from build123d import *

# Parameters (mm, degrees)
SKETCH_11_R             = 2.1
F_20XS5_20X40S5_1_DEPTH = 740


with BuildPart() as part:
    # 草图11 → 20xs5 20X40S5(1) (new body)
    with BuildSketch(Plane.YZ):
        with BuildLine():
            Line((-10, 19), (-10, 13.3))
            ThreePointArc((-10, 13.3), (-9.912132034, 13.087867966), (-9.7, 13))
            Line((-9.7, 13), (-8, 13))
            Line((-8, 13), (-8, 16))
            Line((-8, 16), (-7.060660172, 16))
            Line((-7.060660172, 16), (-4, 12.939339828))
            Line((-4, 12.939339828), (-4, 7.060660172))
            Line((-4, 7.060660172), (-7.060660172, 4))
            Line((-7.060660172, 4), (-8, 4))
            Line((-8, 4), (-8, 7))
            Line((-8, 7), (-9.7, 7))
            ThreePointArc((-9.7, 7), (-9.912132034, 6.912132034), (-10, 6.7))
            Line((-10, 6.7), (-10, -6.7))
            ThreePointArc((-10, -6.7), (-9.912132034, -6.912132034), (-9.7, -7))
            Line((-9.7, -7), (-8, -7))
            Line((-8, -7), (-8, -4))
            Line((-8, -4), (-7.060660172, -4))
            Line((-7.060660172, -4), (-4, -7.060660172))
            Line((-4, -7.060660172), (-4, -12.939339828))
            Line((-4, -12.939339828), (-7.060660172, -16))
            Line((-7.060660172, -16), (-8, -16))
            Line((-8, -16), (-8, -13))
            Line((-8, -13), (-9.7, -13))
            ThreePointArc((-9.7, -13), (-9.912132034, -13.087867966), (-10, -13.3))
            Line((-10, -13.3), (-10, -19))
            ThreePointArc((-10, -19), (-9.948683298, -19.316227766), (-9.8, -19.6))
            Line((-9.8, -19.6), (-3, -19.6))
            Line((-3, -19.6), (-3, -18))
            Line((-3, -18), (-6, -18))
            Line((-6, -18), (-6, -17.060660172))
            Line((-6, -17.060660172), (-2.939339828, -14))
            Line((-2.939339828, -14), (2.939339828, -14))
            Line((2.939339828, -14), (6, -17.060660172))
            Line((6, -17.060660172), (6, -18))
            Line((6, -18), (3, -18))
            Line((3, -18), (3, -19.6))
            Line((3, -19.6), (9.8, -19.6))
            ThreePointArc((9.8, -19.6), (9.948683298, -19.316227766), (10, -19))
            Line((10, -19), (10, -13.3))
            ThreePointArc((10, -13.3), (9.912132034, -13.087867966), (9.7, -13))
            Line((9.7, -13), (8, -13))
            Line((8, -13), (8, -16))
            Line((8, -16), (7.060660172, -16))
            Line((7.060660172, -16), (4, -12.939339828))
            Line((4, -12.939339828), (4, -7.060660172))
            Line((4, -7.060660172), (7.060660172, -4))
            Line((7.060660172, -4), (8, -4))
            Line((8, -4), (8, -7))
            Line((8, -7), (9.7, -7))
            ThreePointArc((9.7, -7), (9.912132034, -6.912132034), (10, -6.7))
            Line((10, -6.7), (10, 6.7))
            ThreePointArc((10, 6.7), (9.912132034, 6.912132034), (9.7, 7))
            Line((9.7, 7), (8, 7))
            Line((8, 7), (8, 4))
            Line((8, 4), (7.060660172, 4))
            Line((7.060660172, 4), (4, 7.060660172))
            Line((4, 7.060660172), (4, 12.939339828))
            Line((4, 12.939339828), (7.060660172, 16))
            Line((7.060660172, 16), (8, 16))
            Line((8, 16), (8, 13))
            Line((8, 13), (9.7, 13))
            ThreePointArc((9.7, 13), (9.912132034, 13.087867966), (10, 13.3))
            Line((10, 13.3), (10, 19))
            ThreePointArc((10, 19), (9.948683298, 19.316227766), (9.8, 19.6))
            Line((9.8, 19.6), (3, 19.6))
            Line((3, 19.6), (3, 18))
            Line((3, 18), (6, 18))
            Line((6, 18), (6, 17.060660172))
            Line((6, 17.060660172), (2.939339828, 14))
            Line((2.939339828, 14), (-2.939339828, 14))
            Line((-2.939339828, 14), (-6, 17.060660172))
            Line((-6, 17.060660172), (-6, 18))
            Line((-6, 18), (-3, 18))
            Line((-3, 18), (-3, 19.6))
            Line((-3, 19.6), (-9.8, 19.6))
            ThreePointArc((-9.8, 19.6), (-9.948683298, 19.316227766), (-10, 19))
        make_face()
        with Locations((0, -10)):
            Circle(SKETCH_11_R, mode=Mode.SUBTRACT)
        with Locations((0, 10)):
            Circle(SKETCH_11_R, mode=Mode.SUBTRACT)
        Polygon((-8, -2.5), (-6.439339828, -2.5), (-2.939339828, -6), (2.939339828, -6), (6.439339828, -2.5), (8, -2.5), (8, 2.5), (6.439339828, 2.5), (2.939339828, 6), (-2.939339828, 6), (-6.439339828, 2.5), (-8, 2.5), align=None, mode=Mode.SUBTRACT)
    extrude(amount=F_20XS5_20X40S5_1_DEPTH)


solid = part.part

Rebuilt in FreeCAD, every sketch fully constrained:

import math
import FreeCAD as App
import Part
import Sketcher
from FreeCAD import Vector
Q = App.Units.Quantity

doc = App.newDocument("Part")
body = doc.addObject("PartDesign::Body", "Body")

# Sketch on YZ plane
sketch1 = body.newObject("Sketcher::SketchObject", "Sketch")
sketch1.AttachmentSupport = (doc.getObject("YZ_Plane"), [""])
sketch1.MapMode = "FlatFace"
sketch1.addGeometry([
    Part.LineSegment(Vector(-10, 19, 0), Vector(-10, 13.3, 0)),  # 0
    Part.ArcOfCircle(Part.Circle(Vector(-9.7, 13.3, 0), Vector(0, 0, 1), 0.3), math.radians(-180), math.radians(-90)),  # 1
    Part.LineSegment(Vector(-9.7, 13, 0), Vector(-8, 13, 0)),  # 2
    Part.LineSegment(Vector(-8, 13, 0), Vector(-8, 16, 0)),  # 3
    Part.LineSegment(Vector(-8, 16, 0), Vector(-7.06, 16, 0)),  # 4
    Part.LineSegment(Vector(-7.06, 16, 0), Vector(-4, 12.94, 0)),  # 5
    Part.LineSegment(Vector(-4, 12.94, 0), Vector(-4, 7.06, 0)),  # 6
    Part.LineSegment(Vector(-4, 7.06, 0), Vector(-7.06, 4, 0)),  # 7
    Part.LineSegment(Vector(-7.06, 4, 0), Vector(-8, 4, 0)),  # 8
    Part.LineSegment(Vector(-8, 4, 0), Vector(-8, 7, 0)),  # 9
    Part.LineSegment(Vector(-8, 7, 0), Vector(-9.7, 7, 0)),  # 10
    Part.ArcOfCircle(Part.Circle(Vector(-9.7, 6.7, 0), Vector(0, 0, 1), 0.3), math.radians(90), math.radians(180)),  # 11
    Part.LineSegment(Vector(-10, 6.7, 0), Vector(-10, -6.7, 0)),  # 12
    Part.ArcOfCircle(Part.Circle(Vector(-9.7, -6.7, 0), Vector(0, 0, 1), 0.3), math.radians(-180), math.radians(-90)),  # 13
    Part.LineSegment(Vector(-9.7, -7, 0), Vector(-8, -7, 0)),  # 14
    Part.LineSegment(Vector(-8, -7, 0), Vector(-8, -4, 0)),  # 15
    Part.LineSegment(Vector(-8, -4, 0), Vector(-7.06, -4, 0)),  # 16
    Part.LineSegment(Vector(-7.06, -4, 0), Vector(-4, -7.06, 0)),  # 17
    Part.LineSegment(Vector(-4, -7.06, 0), Vector(-4, -12.94, 0)),  # 18
    Part.LineSegment(Vector(-4, -12.94, 0), Vector(-7.06, -16, 0)),  # 19
    Part.LineSegment(Vector(-7.06, -16, 0), Vector(-8, -16, 0)),  # 20
    Part.LineSegment(Vector(-8, -16, 0), Vector(-8, -13, 0)),  # 21
    Part.LineSegment(Vector(-8, -13, 0), Vector(-9.7, -13, 0)),  # 22
    Part.ArcOfCircle(Part.Circle(Vector(-9.7, -13.3, 0), Vector(0, 0, 1), 0.3), math.radians(90), math.radians(180)),  # 23
    Part.LineSegment(Vector(-10, -13.3, 0), Vector(-10, -19, 0)),  # 24
    Part.ArcOfCircle(Part.Circle(Vector(-9, -19, 0), Vector(0, 0, 1), 1), math.radians(180), math.radians(217)),  # 25
    Part.LineSegment(Vector(-9.8, -19.6, 0), Vector(-3, -19.6, 0)),  # 26
    Part.LineSegment(Vector(-3, -19.6, 0), Vector(-3, -18, 0)),  # 27
    Part.LineSegment(Vector(-3, -18, 0), Vector(-6, -18, 0)),  # 28
    Part.LineSegment(Vector(-6, -18, 0), Vector(-6, -17.06, 0)),  # 29
    Part.LineSegment(Vector(-6, -17.06, 0), Vector(-2.94, -14, 0)),  # 30
    Part.LineSegment(Vector(-2.94, -14, 0), Vector(2.94, -14, 0)),  # 31
    Part.LineSegment(Vector(2.94, -14, 0), Vector(6, -17.06, 0)),  # 32
    Part.LineSegment(Vector(6, -17.06, 0), Vector(6, -18, 0)),  # 33
    Part.LineSegment(Vector(6, -18, 0), Vector(3, -18, 0)),  # 34
    Part.LineSegment(Vector(3, -18, 0), Vector(3, -19.6, 0)),  # 35
    Part.LineSegment(Vector(3, -19.6, 0), Vector(9.8, -19.6, 0)),  # 36
    Part.ArcOfCircle(Part.Circle(Vector(9, -19, 0), Vector(0, 0, 1), 1), math.radians(-37), math.radians(0)),  # 37
    Part.LineSegment(Vector(10, -19, 0), Vector(10, -13.3, 0)),  # 38
    Part.ArcOfCircle(Part.Circle(Vector(9.7, -13.3, 0), Vector(0, 0, 1), 0.3), math.radians(0), math.radians(90)),  # 39
    Part.LineSegment(Vector(9.7, -13, 0), Vector(8, -13, 0)),  # 40
    Part.LineSegment(Vector(8, -13, 0), Vector(8, -16, 0)),  # 41
    Part.LineSegment(Vector(8, -16, 0), Vector(7.06, -16, 0)),  # 42
    Part.LineSegment(Vector(7.06, -16, 0), Vector(4, -12.94, 0)),  # 43
    Part.LineSegment(Vector(4, -12.94, 0), Vector(4, -7.06, 0)),  # 44
    Part.LineSegment(Vector(4, -7.06, 0), Vector(7.06, -4, 0)),  # 45
    Part.LineSegment(Vector(7.06, -4, 0), Vector(8, -4, 0)),  # 46
    Part.LineSegment(Vector(8, -4, 0), Vector(8, -7, 0)),  # 47
    Part.LineSegment(Vector(8, -7, 0), Vector(9.7, -7, 0)),  # 48
    Part.ArcOfCircle(Part.Circle(Vector(9.7, -6.7, 0), Vector(0, 0, 1), 0.3), math.radians(-90), math.radians(0)),  # 49
    Part.LineSegment(Vector(10, -6.7, 0), Vector(10, 6.7, 0)),  # 50
    Part.ArcOfCircle(Part.Circle(Vector(9.7, 6.7, 0), Vector(0, 0, 1), 0.3), math.radians(0), math.radians(90)),  # 51
    Part.LineSegment(Vector(9.7, 7, 0), Vector(8, 7, 0)),  # 52
    Part.LineSegment(Vector(8, 7, 0), Vector(8, 4, 0)),  # 53
    Part.LineSegment(Vector(8, 4, 0), Vector(7.06, 4, 0)),  # 54
    Part.LineSegment(Vector(7.06, 4, 0), Vector(4, 7.06, 0)),  # 55
    Part.LineSegment(Vector(4, 7.06, 0), Vector(4, 12.94, 0)),  # 56
    Part.LineSegment(Vector(4, 12.94, 0), Vector(7.06, 16, 0)),  # 57
    Part.LineSegment(Vector(7.06, 16, 0), Vector(8, 16, 0)),  # 58
    Part.LineSegment(Vector(8, 16, 0), Vector(8, 13, 0)),  # 59
    Part.LineSegment(Vector(8, 13, 0), Vector(9.7, 13, 0)),  # 60
    Part.ArcOfCircle(Part.Circle(Vector(9.7, 13.3, 0), Vector(0, 0, 1), 0.3), math.radians(-90), math.radians(0)),  # 61
    Part.LineSegment(Vector(10, 13.3, 0), Vector(10, 19, 0)),  # 62
    Part.ArcOfCircle(Part.Circle(Vector(9, 19, 0), Vector(0, 0, 1), 1), math.radians(0), math.radians(37)),  # 63
    Part.LineSegment(Vector(9.8, 19.6, 0), Vector(3, 19.6, 0)),  # 64
    Part.LineSegment(Vector(3, 19.6, 0), Vector(3, 18, 0)),  # 65
    Part.LineSegment(Vector(3, 18, 0), Vector(6, 18, 0)),  # 66
    Part.LineSegment(Vector(6, 18, 0), Vector(6, 17.06, 0)),  # 67
    Part.LineSegment(Vector(6, 17.06, 0), Vector(2.94, 14, 0)),  # 68
    Part.LineSegment(Vector(2.94, 14, 0), Vector(-2.94, 14, 0)),  # 69
    Part.LineSegment(Vector(-2.94, 14, 0), Vector(-6, 17.06, 0)),  # 70
    Part.LineSegment(Vector(-6, 17.06, 0), Vector(-6, 18, 0)),  # 71
    Part.LineSegment(Vector(-6, 18, 0), Vector(-3, 18, 0)),  # 72
    Part.LineSegment(Vector(-3, 18, 0), Vector(-3, 19.6, 0)),  # 73
    Part.LineSegment(Vector(-3, 19.6, 0), Vector(-9.8, 19.6, 0)),  # 74
    Part.ArcOfCircle(Part.Circle(Vector(-9, 19, 0), Vector(0, 0, 1), 1), math.radians(143), math.radians(180)),  # 75
    Part.Circle(Vector(0, -10, 0), Vector(0, 0, 1), 2.1),  # 76
    Part.LineSegment(Vector(-6.44, -2.5, 0), Vector(-8, -2.5, 0)),  # 77
    Part.LineSegment(Vector(-8, -2.5, 0), Vector(-8, 2.5, 0)),  # 78
    Part.LineSegment(Vector(-8, 2.5, 0), Vector(-6.44, 2.5, 0)),  # 79
    Part.LineSegment(Vector(-6.44, 2.5, 0), Vector(-2.94, 6, 0)),  # 80
    Part.LineSegment(Vector(-2.94, 6, 0), Vector(2.94, 6, 0)),  # 81
    Part.LineSegment(Vector(2.94, 6, 0), Vector(6.44, 2.5, 0)),  # 82
    Part.LineSegment(Vector(6.44, 2.5, 0), Vector(8, 2.5, 0)),  # 83
    Part.LineSegment(Vector(8, 2.5, 0), Vector(8, -2.5, 0)),  # 84
    Part.LineSegment(Vector(8, -2.5, 0), Vector(6.44, -2.5, 0)),  # 85
    Part.LineSegment(Vector(6.44, -2.5, 0), Vector(2.94, -6, 0)),  # 86
    Part.LineSegment(Vector(2.94, -6, 0), Vector(-2.94, -6, 0)),  # 87
    Part.LineSegment(Vector(-2.94, -6, 0), Vector(-6.44, -2.5, 0)),  # 88
    Part.Circle(Vector(0, 10, 0), Vector(0, 0, 1), 2.1),  # 89
], False)
sketch1.addConstraint([
    Sketcher.Constraint("Tangent", 0, 2, 1, 1),
    Sketcher.Constraint("Tangent", 1, 2, 2, 1),
    Sketcher.Constraint("Coincident", 2, 2, 3, 1),
    Sketcher.Constraint("Coincident", 3, 2, 4, 1),
    Sketcher.Constraint("Coincident", 4, 2, 5, 1),
    Sketcher.Constraint("Coincident", 5, 2, 6, 1),
    Sketcher.Constraint("Coincident", 6, 2, 7, 1),
    Sketcher.Constraint("Coincident", 7, 2, 8, 1),
    Sketcher.Constraint("Coincident", 8, 2, 9, 1),
    Sketcher.Constraint("Coincident", 9, 2, 10, 1),
    Sketcher.Constraint("Tangent", 10, 2, 11, 1),
    Sketcher.Constraint("Tangent", 11, 2, 12, 1),
    Sketcher.Constraint("Tangent", 12, 2, 13, 1),
    Sketcher.Constraint("Tangent", 13, 2, 14, 1),
    Sketcher.Constraint("Coincident", 14, 2, 15, 1),
    Sketcher.Constraint("Coincident", 15, 2, 16, 1),
    Sketcher.Constraint("Coincident", 16, 2, 17, 1),
    Sketcher.Constraint("Coincident", 17, 2, 18, 1),
    Sketcher.Constraint("Coincident", 18, 2, 19, 1),
    Sketcher.Constraint("Coincident", 19, 2, 20, 1),
    Sketcher.Constraint("Coincident", 20, 2, 21, 1),
    Sketcher.Constraint("Coincident", 21, 2, 22, 1),
    Sketcher.Constraint("Tangent", 22, 2, 23, 1),
    Sketcher.Constraint("Tangent", 23, 2, 24, 1),
    Sketcher.Constraint("Tangent", 24, 2, 25, 1),
    Sketcher.Constraint("Coincident", 25, 2, 26, 1),
    Sketcher.Constraint("Coincident", 26, 2, 27, 1),
    Sketcher.Constraint("Coincident", 27, 2, 28, 1),
    Sketcher.Constraint("Coincident", 28, 2, 29, 1),
    Sketcher.Constraint("Coincident", 29, 2, 30, 1),
    Sketcher.Constraint("Coincident", 30, 2, 31, 1),
    Sketcher.Constraint("Coincident", 31, 2, 32, 1),
    Sketcher.Constraint("Coincident", 32, 2, 33, 1),
    Sketcher.Constraint("Coincident", 33, 2, 34, 1),
    Sketcher.Constraint("Coincident", 34, 2, 35, 1),
    Sketcher.Constraint("Coincident", 35, 2, 36, 1),
    Sketcher.Constraint("Coincident", 36, 2, 37, 1),
    Sketcher.Constraint("Tangent", 37, 2, 38, 1),
    Sketcher.Constraint("Tangent", 38, 2, 39, 1),
    Sketcher.Constraint("Tangent", 39, 2, 40, 1),
    Sketcher.Constraint("Coincident", 40, 2, 41, 1),
    Sketcher.Constraint("Coincident", 41, 2, 42, 1),
    Sketcher.Constraint("Coincident", 42, 2, 43, 1),
    Sketcher.Constraint("Coincident", 43, 2, 44, 1),
    Sketcher.Constraint("Coincident", 44, 2, 45, 1),
    Sketcher.Constraint("Coincident", 45, 2, 46, 1),
    Sketcher.Constraint("Coincident", 46, 2, 47, 1),
    Sketcher.Constraint("Coincident", 47, 2, 48, 1),
    Sketcher.Constraint("Tangent", 48, 2, 49, 1),
    Sketcher.Constraint("Tangent", 49, 2, 50, 1),
    Sketcher.Constraint("Tangent", 50, 2, 51, 1),
    Sketcher.Constraint("Tangent", 51, 2, 52, 1),
    Sketcher.Constraint("Coincident", 52, 2, 53, 1),
    Sketcher.Constraint("Coincident", 53, 2, 54, 1),
    Sketcher.Constraint("Coincident", 54, 2, 55, 1),
    Sketcher.Constraint("Coincident", 55, 2, 56, 1),
    Sketcher.Constraint("Coincident", 56, 2, 57, 1),
    Sketcher.Constraint("Coincident", 57, 2, 58, 1),
    Sketcher.Constraint("Coincident", 58, 2, 59, 1),
    Sketcher.Constraint("Coincident", 59, 2, 60, 1),
    Sketcher.Constraint("Tangent", 60, 2, 61, 1),
    Sketcher.Constraint("Tangent", 61, 2, 62, 1),
    Sketcher.Constraint("Tangent", 62, 2, 63, 1),
    Sketcher.Constraint("Coincident", 63, 2, 64, 1),
    Sketcher.Constraint("Coincident", 64, 2, 65, 1),
    Sketcher.Constraint("Coincident", 65, 2, 66, 1),
    Sketcher.Constraint("Coincident", 66, 2, 67, 1),
    Sketcher.Constraint("Coincident", 67, 2, 68, 1),
    Sketcher.Constraint("Coincident", 68, 2, 69, 1),
    Sketcher.Constraint("Coincident", 69, 2, 70, 1),
    Sketcher.Constraint("Coincident", 70, 2, 71, 1),
    Sketcher.Constraint("Coincident", 71, 2, 72, 1),
    Sketcher.Constraint("Coincident", 72, 2, 73, 1),
    Sketcher.Constraint("Coincident", 73, 2, 74, 1),
    Sketcher.Constraint("Coincident", 74, 2, 75, 1),
    Sketcher.Constraint("Tangent", 75, 2, 0, 1),
    Sketcher.Constraint("Coincident", 77, 2, 78, 1),
    Sketcher.Constraint("Coincident", 78, 2, 79, 1),
    Sketcher.Constraint("Coincident", 79, 2, 80, 1),
    Sketcher.Constraint("Coincident", 80, 2, 81, 1),
    Sketcher.Constraint("Coincident", 81, 2, 82, 1),
    Sketcher.Constraint("Coincident", 82, 2, 83, 1),
    Sketcher.Constraint("Coincident", 83, 2, 84, 1),
    Sketcher.Constraint("Coincident", 84, 2, 85, 1),
    Sketcher.Constraint("Coincident", 85, 2, 86, 1),
    Sketcher.Constraint("Coincident", 86, 2, 87, 1),
    Sketcher.Constraint("Coincident", 87, 2, 88, 1),
    Sketcher.Constraint("Coincident", 88, 2, 77, 1),
    Sketcher.Constraint("Vertical", 0),
    Sketcher.Constraint("Horizontal", 2),
    Sketcher.Constraint("Vertical", 3),
    Sketcher.Constraint("Horizontal", 4),
    Sketcher.Constraint("Vertical", 6),
    Sketcher.Constraint("Horizontal", 8),
    Sketcher.Constraint("Vertical", 9),
    Sketcher.Constraint("Horizontal", 10),
    Sketcher.Constraint("Vertical", 12),
    Sketcher.Constraint("Horizontal", 14),
    Sketcher.Constraint("Vertical", 15),
    Sketcher.Constraint("Horizontal", 16),
    Sketcher.Constraint("Vertical", 18),
    Sketcher.Constraint("Horizontal", 20),
    Sketcher.Constraint("Vertical", 21),
    Sketcher.Constraint("Horizontal", 22),
    Sketcher.Constraint("Vertical", 24),
    Sketcher.Constraint("Horizontal", 26),
    Sketcher.Constraint("Vertical", 27),
    Sketcher.Constraint("Horizontal", 28),
    Sketcher.Constraint("Vertical", 29),
    Sketcher.Constraint("Horizontal", 31),
    Sketcher.Constraint("Vertical", 33),
    Sketcher.Constraint("Horizontal", 34),
    Sketcher.Constraint("Vertical", 35),
    Sketcher.Constraint("Horizontal", 36),
    Sketcher.Constraint("Vertical", 38),
    Sketcher.Constraint("Horizontal", 40),
    Sketcher.Constraint("Vertical", 41),
    Sketcher.Constraint("Horizontal", 42),
    Sketcher.Constraint("Vertical", 44),
    Sketcher.Constraint("Horizontal", 46),
    Sketcher.Constraint("Vertical", 47),
    Sketcher.Constraint("Horizontal", 48),
    Sketcher.Constraint("Vertical", 50),
    Sketcher.Constraint("Horizontal", 52),
    Sketcher.Constraint("Vertical", 53),
    Sketcher.Constraint("Horizontal", 54),
    Sketcher.Constraint("Vertical", 56),
    Sketcher.Constraint("Horizontal", 58),
    Sketcher.Constraint("Vertical", 59),
    Sketcher.Constraint("Horizontal", 60),
    Sketcher.Constraint("Vertical", 62),
    Sketcher.Constraint("Horizontal", 64),
    Sketcher.Constraint("Vertical", 65),
    Sketcher.Constraint("Horizontal", 66),
    Sketcher.Constraint("Vertical", 67),
    Sketcher.Constraint("Horizontal", 69),
    Sketcher.Constraint("Vertical", 71),
    Sketcher.Constraint("Horizontal", 72),
    Sketcher.Constraint("Vertical", 73),
    Sketcher.Constraint("Horizontal", 74),
    Sketcher.Constraint("Horizontal", 77),
    Sketcher.Constraint("Vertical", 78),
    Sketcher.Constraint("Horizontal", 79),
    Sketcher.Constraint("Horizontal", 81),
    Sketcher.Constraint("Horizontal", 83),
    Sketcher.Constraint("Vertical", 84),
    Sketcher.Constraint("Horizontal", 85),
    Sketcher.Constraint("Horizontal", 87),
    Sketcher.Constraint("Equal", 1, 11),
    Sketcher.Constraint("Equal", 11, 13),
    Sketcher.Constraint("Equal", 13, 23),
    Sketcher.Constraint("Equal", 25, 37),
    Sketcher.Constraint("Equal", 23, 39),
    Sketcher.Constraint("Equal", 39, 49),
    Sketcher.Constraint("Equal", 49, 51),
    Sketcher.Constraint("Equal", 51, 61),
    Sketcher.Constraint("Equal", 37, 63),
    Sketcher.Constraint("Equal", 63, 75),
    Sketcher.Constraint("Equal", 76, 89),
    Sketcher.Constraint("Symmetric", 1, 3, 39, 3, -1, 1),
    Sketcher.Constraint("Symmetric", 11, 3, 49, 3, -1, 1),
    Sketcher.Constraint("Symmetric", 23, 3, 61, 3, -1, 1),
    Sketcher.Constraint("Symmetric", 76, 3, 89, 3, -1, 1),
    Sketcher.Constraint("Symmetric", 3, 2, 41, 2, -1, 1),
    Sketcher.Constraint("Symmetric", 5, 2, 43, 2, -1, 1),
    Sketcher.Constraint("Symmetric", 7, 2, 45, 2, -1, 1),
    Sketcher.Constraint("Symmetric", 14, 2, 52, 2, -1, 1),
    Sketcher.Constraint("Symmetric", 16, 2, 54, 2, -1, 1),
    Sketcher.Constraint("Symmetric", 17, 2, 55, 2, -1, 1),
    Sketcher.Constraint("Symmetric", 19, 2, 57, 2, -1, 1),
    Sketcher.Constraint("Symmetric", 25, 2, 63, 2, -1, 1),
    Sketcher.Constraint("Symmetric", 27, 2, 65, 2, -1, 1),
    Sketcher.Constraint("Symmetric", 29, 2, 67, 2, -1, 1),
    Sketcher.Constraint("Symmetric", 30, 2, 68, 2, -1, 1),
    Sketcher.Constraint("Symmetric", 32, 2, 70, 2, -1, 1),
    Sketcher.Constraint("Symmetric", 34, 2, 72, 2, -1, 1),
    Sketcher.Constraint("Symmetric", 36, 2, 74, 2, -1, 1),
    Sketcher.Constraint("Symmetric", 77, 2, 83, 2, -1, 1),
    Sketcher.Constraint("Symmetric", 79, 2, 85, 2, -1, 1),
    Sketcher.Constraint("Symmetric", 80, 2, 86, 2, -1, 1),
    Sketcher.Constraint("Symmetric", 25, 3, 37, 3, -2),
    Sketcher.Constraint("Symmetric", 29, 2, 32, 2, -2),
    Sketcher.Constraint("Symmetric", 27, 2, 34, 2, -2),
    Sketcher.Constraint("Symmetric", 21, 2, 40, 2, -2),
    Sketcher.Constraint("Symmetric", 19, 2, 42, 2, -2),
    Sketcher.Constraint("Symmetric", 18, 2, 43, 2, -2),
    Sketcher.Constraint("Symmetric", 16, 2, 45, 2, -2),
    Sketcher.Constraint("Symmetric", 14, 2, 47, 2, -2),
    Sketcher.Constraint("Symmetric", 79, 2, 82, 2, -2),
    Sketcher.Constraint("PointOnObject", 76, 3, -2),
    Sketcher.Constraint("Perpendicular", 5, 7),
    Sketcher.Constraint("Perpendicular", 7, 17),
    Sketcher.Constraint("Perpendicular", 17, 19),
    Sketcher.Constraint("Parallel", 19, 30),
    Sketcher.Constraint("Perpendicular", 30, 32),
    Sketcher.Constraint("Parallel", 32, 43),
    Sketcher.Constraint("Perpendicular", 43, 45),
    Sketcher.Constraint("Perpendicular", 55, 57),
    Sketcher.Constraint("Perpendicular", 68, 70),
    Sketcher.Constraint("Perpendicular", 70, 80),
    Sketcher.Constraint("Perpendicular", 80, 82),
    Sketcher.Constraint("Perpendicular", 86, 88),
    Sketcher.Constraint("Horizontal", 26, 2, 35, 2),
    Sketcher.Constraint("Vertical", 1, 3, 11, 3),
    Sketcher.Constraint("Vertical", 4, 2, 7, 2),
    Sketcher.Constraint("Vertical", 3, 2, 8, 2),
    Sketcher.Constraint("Vertical", 9, 2, 14, 2),
    Sketcher.Constraint("Vertical", 53, 2, 58, 2),
    Sketcher.Constraint("Vertical", 21, 2, 77, 2),
    Sketcher.Constraint("Vertical", 69, 2, 80, 2),
    Sketcher.Constraint("Vertical", 80, 2, 87, 2),
    Sketcher.Constraint("Equal", 72, 3),
    Sketcher.Constraint("Equal", 87, 6),
    Sketcher.Constraint("Equal", 3, 9),
    Sketcher.Constraint("Equal", 58, 29),
    Sketcher.Constraint("Equal", 19, 30),
    Sketcher.Constraint("Radius", 25, Q("1 mm")),
    Sketcher.Constraint("Diameter", 76, Q("4.2 mm")),
    Sketcher.Constraint("Radius", 1, Q("0.3 mm")),
    Sketcher.Constraint("DistanceX", 28, 2, 28, 1, Q("3 mm")),
    Sketcher.Constraint("DistanceY", 78, 1, 78, 2, Q("5 mm")),
    Sketcher.Constraint("DistanceX", 2, 1, 2, 2, Q("1.7 mm")),
    Sketcher.Constraint("DistanceX", 26, 1, 26, 2, Q("6.8 mm")),
    Sketcher.Constraint("DistanceY", 0, 2, 0, 1, Q("5.7 mm")),
    Sketcher.Constraint("DistanceY", 12, 2, 12, 1, Q("13.4 mm")),
    Sketcher.Constraint("DistanceY", 27, 1, 27, 2, Q("1.6 mm")),
    Sketcher.Constraint("DistanceX", 25, 3, -1, 1, Q("9 mm")),
    Sketcher.Constraint("DistanceY", 25, 3, -1, 1, Q("19 mm")),
    Sketcher.Constraint("DistanceY", 76, 3, -1, 1, Q("10 mm")),
    Sketcher.Constraint("DistanceX", 5, 2, -1, 1, Q("4 mm")),
    Sketcher.Constraint("DistanceY", -1, 1, 80, 2, Q("6 mm")),
    Sketcher.Constraint("DistanceX", 4, 1, 4, 2, Q("0.93934 mm")),
])
pad1 = body.newObject("PartDesign::Pad", "Pad")
pad1.Profile = sketch1
pad1.Length = 740

doc.recompute()
